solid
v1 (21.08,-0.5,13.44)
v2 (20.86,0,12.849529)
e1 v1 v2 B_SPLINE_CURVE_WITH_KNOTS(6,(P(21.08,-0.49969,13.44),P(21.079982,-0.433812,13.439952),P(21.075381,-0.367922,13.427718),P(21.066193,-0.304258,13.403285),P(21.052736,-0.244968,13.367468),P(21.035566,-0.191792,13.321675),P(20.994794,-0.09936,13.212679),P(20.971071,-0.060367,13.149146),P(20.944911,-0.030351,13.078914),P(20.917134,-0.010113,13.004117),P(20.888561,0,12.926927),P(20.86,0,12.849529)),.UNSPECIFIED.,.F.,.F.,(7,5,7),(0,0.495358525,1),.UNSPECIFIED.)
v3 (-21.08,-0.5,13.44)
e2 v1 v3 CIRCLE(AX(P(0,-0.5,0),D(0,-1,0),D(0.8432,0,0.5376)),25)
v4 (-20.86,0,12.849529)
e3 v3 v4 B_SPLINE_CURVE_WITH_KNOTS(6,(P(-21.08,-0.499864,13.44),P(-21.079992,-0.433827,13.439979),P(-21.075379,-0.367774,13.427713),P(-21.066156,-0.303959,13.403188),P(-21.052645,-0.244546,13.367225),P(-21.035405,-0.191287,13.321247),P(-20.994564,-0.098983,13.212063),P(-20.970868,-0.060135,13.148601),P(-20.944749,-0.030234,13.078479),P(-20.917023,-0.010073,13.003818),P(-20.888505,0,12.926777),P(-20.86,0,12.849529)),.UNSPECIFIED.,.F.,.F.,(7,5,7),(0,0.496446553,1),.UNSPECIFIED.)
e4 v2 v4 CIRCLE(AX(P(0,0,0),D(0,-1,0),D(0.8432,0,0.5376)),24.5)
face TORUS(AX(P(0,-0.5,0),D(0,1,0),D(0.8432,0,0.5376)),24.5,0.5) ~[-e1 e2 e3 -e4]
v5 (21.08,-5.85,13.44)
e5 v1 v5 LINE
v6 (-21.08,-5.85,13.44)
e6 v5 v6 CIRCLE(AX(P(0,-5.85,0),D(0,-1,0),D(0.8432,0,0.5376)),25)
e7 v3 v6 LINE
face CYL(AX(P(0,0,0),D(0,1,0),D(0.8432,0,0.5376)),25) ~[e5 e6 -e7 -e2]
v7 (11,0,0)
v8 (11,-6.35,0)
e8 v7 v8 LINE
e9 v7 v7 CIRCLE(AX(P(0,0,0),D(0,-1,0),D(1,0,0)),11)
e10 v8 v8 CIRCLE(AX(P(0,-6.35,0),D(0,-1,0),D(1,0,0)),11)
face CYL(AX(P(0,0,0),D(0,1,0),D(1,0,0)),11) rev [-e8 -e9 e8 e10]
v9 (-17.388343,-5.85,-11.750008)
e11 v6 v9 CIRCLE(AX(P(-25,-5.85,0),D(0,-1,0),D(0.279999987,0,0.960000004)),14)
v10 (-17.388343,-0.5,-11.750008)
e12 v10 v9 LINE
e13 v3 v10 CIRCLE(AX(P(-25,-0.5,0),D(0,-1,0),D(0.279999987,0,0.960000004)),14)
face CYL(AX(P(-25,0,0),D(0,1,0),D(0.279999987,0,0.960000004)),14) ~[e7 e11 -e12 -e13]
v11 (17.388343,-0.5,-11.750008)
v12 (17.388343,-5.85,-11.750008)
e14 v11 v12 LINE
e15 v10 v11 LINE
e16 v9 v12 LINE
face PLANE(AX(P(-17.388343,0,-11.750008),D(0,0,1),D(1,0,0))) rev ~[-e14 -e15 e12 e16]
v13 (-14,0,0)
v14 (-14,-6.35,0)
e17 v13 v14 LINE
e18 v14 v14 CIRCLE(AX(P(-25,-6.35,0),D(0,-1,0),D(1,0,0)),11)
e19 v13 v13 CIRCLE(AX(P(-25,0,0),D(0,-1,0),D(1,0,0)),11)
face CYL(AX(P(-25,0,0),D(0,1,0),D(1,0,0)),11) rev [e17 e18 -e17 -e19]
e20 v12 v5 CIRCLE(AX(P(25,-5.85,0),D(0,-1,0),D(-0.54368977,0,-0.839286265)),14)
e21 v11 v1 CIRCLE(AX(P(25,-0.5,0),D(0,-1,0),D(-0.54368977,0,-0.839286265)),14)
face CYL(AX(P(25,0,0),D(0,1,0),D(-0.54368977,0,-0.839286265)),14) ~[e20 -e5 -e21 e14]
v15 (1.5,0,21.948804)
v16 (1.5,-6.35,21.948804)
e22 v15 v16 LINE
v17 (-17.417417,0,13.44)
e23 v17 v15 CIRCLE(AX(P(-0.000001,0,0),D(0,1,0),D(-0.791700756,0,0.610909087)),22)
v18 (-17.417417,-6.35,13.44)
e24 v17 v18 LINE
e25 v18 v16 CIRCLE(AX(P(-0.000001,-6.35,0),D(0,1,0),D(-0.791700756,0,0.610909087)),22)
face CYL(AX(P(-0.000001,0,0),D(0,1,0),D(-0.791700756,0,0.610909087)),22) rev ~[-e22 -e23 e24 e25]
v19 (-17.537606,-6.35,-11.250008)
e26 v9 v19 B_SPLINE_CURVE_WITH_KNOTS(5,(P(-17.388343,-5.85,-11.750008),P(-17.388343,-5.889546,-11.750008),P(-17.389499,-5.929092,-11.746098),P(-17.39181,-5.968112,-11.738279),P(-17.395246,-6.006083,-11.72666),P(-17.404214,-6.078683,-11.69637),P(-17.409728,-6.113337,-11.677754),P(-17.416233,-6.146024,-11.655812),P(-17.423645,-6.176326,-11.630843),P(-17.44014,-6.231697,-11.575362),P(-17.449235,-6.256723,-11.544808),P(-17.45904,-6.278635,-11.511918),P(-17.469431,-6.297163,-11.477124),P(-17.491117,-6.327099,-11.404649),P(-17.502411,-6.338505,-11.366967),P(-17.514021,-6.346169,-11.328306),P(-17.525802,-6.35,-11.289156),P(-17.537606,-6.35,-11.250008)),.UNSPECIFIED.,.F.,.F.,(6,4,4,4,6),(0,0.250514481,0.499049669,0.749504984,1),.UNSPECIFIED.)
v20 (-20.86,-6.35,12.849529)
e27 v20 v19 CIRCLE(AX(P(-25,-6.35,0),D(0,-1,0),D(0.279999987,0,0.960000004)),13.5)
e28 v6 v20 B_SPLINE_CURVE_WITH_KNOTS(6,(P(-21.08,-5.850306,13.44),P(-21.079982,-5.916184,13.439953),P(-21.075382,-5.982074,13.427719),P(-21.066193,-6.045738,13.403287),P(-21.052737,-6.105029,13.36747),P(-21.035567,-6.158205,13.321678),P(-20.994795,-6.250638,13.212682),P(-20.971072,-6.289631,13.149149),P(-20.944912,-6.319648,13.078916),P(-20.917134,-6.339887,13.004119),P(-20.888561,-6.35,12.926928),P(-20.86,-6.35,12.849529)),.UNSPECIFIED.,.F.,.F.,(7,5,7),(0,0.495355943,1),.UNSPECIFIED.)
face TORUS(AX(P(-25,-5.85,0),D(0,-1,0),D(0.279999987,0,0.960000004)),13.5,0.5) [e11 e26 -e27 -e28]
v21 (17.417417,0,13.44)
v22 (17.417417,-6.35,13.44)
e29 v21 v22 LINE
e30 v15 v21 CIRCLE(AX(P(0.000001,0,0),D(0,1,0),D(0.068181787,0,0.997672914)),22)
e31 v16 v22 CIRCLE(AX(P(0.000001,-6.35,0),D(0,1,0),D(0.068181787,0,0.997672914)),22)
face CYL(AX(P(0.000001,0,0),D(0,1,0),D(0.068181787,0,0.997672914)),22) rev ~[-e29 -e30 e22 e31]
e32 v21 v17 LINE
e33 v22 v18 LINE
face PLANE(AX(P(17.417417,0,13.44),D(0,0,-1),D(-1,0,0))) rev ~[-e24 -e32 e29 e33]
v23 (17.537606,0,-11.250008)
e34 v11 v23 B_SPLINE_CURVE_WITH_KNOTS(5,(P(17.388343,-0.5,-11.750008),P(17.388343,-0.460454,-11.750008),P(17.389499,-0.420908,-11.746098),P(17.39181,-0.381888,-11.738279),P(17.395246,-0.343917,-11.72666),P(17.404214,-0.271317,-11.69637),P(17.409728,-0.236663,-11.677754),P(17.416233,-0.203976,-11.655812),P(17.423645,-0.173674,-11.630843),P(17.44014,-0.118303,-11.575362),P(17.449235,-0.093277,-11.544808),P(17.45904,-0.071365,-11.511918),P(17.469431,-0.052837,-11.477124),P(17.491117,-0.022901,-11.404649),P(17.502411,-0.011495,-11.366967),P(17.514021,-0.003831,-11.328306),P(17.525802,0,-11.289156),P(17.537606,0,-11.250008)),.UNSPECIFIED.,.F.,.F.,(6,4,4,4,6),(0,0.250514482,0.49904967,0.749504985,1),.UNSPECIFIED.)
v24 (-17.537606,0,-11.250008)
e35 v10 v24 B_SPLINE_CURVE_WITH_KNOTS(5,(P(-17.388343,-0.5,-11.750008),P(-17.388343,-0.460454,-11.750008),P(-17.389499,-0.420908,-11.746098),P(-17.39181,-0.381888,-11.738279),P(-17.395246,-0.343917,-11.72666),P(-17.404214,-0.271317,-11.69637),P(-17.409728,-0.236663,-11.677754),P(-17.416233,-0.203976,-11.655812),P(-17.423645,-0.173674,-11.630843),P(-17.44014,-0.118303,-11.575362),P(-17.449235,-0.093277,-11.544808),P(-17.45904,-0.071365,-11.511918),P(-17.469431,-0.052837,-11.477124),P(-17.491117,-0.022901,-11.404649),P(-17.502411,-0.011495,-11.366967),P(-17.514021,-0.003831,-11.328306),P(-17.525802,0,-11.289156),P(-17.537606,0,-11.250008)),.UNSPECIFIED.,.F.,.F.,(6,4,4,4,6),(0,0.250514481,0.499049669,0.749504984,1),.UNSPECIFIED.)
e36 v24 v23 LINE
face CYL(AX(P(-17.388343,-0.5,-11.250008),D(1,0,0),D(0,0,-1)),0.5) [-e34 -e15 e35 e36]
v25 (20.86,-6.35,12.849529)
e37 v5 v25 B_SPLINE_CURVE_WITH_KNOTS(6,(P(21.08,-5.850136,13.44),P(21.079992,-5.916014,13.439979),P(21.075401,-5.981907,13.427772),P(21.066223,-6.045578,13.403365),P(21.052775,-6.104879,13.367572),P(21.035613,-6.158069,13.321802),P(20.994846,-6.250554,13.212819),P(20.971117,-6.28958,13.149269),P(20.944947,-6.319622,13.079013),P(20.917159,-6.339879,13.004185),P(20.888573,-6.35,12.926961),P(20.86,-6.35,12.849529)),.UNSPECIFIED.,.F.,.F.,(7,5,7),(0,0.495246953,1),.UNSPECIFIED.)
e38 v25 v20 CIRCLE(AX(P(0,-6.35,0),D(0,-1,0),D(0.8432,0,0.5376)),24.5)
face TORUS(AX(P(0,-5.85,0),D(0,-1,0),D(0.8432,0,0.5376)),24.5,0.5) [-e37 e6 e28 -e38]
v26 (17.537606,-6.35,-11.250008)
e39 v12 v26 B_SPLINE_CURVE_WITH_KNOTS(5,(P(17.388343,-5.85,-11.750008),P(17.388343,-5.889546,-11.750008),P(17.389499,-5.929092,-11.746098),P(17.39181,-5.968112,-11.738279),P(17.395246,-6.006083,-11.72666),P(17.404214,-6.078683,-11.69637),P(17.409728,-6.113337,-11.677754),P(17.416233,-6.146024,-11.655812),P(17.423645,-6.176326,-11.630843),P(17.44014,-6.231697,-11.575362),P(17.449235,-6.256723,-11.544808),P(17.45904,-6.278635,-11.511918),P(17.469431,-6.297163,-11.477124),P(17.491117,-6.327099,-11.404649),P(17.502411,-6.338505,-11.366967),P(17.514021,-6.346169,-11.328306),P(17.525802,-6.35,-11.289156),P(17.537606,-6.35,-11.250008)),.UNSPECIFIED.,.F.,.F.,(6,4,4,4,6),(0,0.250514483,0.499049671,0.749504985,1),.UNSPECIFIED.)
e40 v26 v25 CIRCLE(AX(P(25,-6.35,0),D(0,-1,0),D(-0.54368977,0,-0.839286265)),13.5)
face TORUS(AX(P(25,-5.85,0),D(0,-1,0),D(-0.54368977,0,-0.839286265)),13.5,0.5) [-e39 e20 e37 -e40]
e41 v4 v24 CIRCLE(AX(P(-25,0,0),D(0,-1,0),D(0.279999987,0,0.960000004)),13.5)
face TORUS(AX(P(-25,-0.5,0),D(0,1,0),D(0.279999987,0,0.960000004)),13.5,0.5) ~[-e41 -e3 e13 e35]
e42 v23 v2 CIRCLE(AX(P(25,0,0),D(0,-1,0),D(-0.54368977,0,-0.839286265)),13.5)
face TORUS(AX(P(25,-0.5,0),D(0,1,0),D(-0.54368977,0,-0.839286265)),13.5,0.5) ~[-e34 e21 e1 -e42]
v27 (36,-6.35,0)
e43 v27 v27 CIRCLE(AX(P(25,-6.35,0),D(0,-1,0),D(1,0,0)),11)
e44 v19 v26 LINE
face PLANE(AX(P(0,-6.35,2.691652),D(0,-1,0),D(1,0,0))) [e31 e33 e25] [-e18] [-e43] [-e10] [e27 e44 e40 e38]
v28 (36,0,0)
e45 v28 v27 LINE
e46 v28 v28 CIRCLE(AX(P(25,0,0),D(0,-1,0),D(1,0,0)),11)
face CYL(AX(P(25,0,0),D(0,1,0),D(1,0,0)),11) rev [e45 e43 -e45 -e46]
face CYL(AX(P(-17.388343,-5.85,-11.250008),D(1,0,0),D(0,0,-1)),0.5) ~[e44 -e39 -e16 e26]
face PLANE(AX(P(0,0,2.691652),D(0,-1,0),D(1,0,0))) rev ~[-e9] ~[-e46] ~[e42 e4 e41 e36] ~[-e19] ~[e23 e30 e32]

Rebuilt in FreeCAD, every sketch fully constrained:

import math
import FreeCAD as App
import Part
import Sketcher

V = App.Vector
Q = App.Units.Quantity


def edges_at(feature, points):
    """Names of the edges that pass closest to the given points."""
    edges = feature.Shape.Edges
    near = lambda p: min(range(len(edges)), key=lambda i: edges[i].distToShape(Part.Vertex(*p))[0])
    return sorted({f"Edge{near(p) + 1}" for p in points})

doc = App.newDocument("Part")
body = doc.addObject("PartDesign::Body", "Body")

sketch1 = doc.addObject("Sketcher::SketchObject", "Sketch")
body.addObject(sketch1)
sketch1.AttachmentSupport = (doc.XZ_Plane, [""])
sketch1.MapMode = "FlatFace"
sketch1.addGeometry(Part.ArcOfCircle(Part.Circle(V(0, 0, 0), V(0, 0, 1), 25), math.radians(33), math.radians(147)), False)
sketch1.addGeometry(Part.ArcOfCircle(Part.Circle(V(-25, 0, 0), V(0, 0, 1), 14), math.radians(74), math.radians(303)), False)
sketch1.addGeometry(Part.LineSegment(V(-17, -12, 0), V(17, -12, 0)), False)
sketch1.addGeometry(Part.ArcOfCircle(Part.Circle(V(25, 0, 0), V(0, 0, 1), 14), math.radians(-123), math.radians(106)), False)
sketch1.addGeometry(Part.Circle(V(-25, 0, 0), V(0, 0, 1), 11), False)
sketch1.addGeometry(Part.Circle(V(0, 0, 0), V(0, 0, 1), 11), False)
sketch1.addGeometry(Part.Circle(V(25, 0, 0), V(0, 0, 1), 11), False)
sketch1.addGeometry(Part.ArcOfCircle(Part.Circle(V(0, 0, 0), V(0, 0, 1), 22), math.radians(86), math.radians(142)), False)
sketch1.addGeometry(Part.ArcOfCircle(Part.Circle(V(0, 0, 0), V(0, 0, 1), 22), math.radians(38), math.radians(86)), False)
sketch1.addGeometry(Part.LineSegment(V(17, 13, 0), V(-17, 13, 0)), False)
sketch1.addConstraint(Sketcher.Constraint("Coincident", 0, 2, 1, 1))
sketch1.addConstraint(Sketcher.Constraint("Coincident", 1, 2, 2, 1))
sketch1.addConstraint(Sketcher.Constraint("Coincident", 2, 2, 3, 1))
sketch1.addConstraint(Sketcher.Constraint("Coincident", 3, 2, 0, 1))
sketch1.addConstraint(Sketcher.Constraint("Tangent", 7, 1, 8, 2))
sketch1.addConstraint(Sketcher.Constraint("Coincident", 8, 1, 9, 1))
sketch1.addConstraint(Sketcher.Constraint("Coincident", 9, 2, 7, 2))
sketch1.addConstraint(Sketcher.Constraint("Horizontal", 2))
sketch1.addConstraint(Sketcher.Constraint("Horizontal", 9))
sketch1.addConstraint(Sketcher.Constraint("Coincident", 0, 3, -1, 1))
sketch1.addConstraint(Sketcher.Constraint("Coincident", 5, 3, -1, 1))
sketch1.addConstraint(Sketcher.Constraint("Coincident", 7, 3, -1, 1))
sketch1.addConstraint(Sketcher.Constraint("Coincident", 4, 3, 1, 3))
sketch1.addConstraint(Sketcher.Constraint("Coincident", 6, 3, 3, 3))
sketch1.addConstraint(Sketcher.Constraint("Equal", 1, 3))
sketch1.addConstraint(Sketcher.Constraint("Equal", 4, 5))
sketch1.addConstraint(Sketcher.Constraint("Equal", 5, 6))
sketch1.addConstraint(Sketcher.Constraint("Equal", 7, 8))
sketch1.addConstraint(Sketcher.Constraint("Symmetric", 1, 3, 3, 3, -1, 1))
sketch1.addConstraint(Sketcher.Constraint("PointOnObject", 1, 3, -1))
sketch1.addConstraint(Sketcher.Constraint("Horizontal", 3, 2, 8, 1))
sketch1.addConstraint(Sketcher.Constraint("Diameter", 4, Q("22 mm")))
sketch1.addConstraint(Sketcher.Constraint("Radius", 0, Q("25 mm")))
sketch1.addConstraint(Sketcher.Constraint("Radius", 1, Q("14 mm")))
sketch1.addConstraint(Sketcher.Constraint("Radius", 7, Q("22 mm")))
sketch1.addConstraint(Sketcher.Constraint("DistanceX", 1, 3, -1, 1, Q("25 mm")))
sketch1.addConstraint(Sketcher.Constraint("DistanceX", -1, 1, 7, 1, Q("1.5 mm")))
sketch1.addConstraint(Sketcher.Constraint("DistanceX", 2, 1, 2, 2, Q("34.776686 mm")))
pad1 = doc.addObject("PartDesign::Pad", "Pad")
body.addObject(pad1)
pad1.Profile = sketch1
pad1.Length = 6.35
doc.recompute()

fillet = doc.addObject("PartDesign::Fillet", "Fillet")
body.addObject(fillet)
fillet.Base = (pad1, edges_at(pad1, [
    (-38.852, -6.35, -2.03),
    (0, -6.35, 25),
    (38.852, -6.35, -2.03),
    (0, -6.35, -11.75),
    (38.852, 0, -2.03),
    (0, 0, 25),
    (-38.852, 0, -2.03),
    (0, 0, -11.75),
]))
fillet.Radius = 0.5

doc.recompute()
